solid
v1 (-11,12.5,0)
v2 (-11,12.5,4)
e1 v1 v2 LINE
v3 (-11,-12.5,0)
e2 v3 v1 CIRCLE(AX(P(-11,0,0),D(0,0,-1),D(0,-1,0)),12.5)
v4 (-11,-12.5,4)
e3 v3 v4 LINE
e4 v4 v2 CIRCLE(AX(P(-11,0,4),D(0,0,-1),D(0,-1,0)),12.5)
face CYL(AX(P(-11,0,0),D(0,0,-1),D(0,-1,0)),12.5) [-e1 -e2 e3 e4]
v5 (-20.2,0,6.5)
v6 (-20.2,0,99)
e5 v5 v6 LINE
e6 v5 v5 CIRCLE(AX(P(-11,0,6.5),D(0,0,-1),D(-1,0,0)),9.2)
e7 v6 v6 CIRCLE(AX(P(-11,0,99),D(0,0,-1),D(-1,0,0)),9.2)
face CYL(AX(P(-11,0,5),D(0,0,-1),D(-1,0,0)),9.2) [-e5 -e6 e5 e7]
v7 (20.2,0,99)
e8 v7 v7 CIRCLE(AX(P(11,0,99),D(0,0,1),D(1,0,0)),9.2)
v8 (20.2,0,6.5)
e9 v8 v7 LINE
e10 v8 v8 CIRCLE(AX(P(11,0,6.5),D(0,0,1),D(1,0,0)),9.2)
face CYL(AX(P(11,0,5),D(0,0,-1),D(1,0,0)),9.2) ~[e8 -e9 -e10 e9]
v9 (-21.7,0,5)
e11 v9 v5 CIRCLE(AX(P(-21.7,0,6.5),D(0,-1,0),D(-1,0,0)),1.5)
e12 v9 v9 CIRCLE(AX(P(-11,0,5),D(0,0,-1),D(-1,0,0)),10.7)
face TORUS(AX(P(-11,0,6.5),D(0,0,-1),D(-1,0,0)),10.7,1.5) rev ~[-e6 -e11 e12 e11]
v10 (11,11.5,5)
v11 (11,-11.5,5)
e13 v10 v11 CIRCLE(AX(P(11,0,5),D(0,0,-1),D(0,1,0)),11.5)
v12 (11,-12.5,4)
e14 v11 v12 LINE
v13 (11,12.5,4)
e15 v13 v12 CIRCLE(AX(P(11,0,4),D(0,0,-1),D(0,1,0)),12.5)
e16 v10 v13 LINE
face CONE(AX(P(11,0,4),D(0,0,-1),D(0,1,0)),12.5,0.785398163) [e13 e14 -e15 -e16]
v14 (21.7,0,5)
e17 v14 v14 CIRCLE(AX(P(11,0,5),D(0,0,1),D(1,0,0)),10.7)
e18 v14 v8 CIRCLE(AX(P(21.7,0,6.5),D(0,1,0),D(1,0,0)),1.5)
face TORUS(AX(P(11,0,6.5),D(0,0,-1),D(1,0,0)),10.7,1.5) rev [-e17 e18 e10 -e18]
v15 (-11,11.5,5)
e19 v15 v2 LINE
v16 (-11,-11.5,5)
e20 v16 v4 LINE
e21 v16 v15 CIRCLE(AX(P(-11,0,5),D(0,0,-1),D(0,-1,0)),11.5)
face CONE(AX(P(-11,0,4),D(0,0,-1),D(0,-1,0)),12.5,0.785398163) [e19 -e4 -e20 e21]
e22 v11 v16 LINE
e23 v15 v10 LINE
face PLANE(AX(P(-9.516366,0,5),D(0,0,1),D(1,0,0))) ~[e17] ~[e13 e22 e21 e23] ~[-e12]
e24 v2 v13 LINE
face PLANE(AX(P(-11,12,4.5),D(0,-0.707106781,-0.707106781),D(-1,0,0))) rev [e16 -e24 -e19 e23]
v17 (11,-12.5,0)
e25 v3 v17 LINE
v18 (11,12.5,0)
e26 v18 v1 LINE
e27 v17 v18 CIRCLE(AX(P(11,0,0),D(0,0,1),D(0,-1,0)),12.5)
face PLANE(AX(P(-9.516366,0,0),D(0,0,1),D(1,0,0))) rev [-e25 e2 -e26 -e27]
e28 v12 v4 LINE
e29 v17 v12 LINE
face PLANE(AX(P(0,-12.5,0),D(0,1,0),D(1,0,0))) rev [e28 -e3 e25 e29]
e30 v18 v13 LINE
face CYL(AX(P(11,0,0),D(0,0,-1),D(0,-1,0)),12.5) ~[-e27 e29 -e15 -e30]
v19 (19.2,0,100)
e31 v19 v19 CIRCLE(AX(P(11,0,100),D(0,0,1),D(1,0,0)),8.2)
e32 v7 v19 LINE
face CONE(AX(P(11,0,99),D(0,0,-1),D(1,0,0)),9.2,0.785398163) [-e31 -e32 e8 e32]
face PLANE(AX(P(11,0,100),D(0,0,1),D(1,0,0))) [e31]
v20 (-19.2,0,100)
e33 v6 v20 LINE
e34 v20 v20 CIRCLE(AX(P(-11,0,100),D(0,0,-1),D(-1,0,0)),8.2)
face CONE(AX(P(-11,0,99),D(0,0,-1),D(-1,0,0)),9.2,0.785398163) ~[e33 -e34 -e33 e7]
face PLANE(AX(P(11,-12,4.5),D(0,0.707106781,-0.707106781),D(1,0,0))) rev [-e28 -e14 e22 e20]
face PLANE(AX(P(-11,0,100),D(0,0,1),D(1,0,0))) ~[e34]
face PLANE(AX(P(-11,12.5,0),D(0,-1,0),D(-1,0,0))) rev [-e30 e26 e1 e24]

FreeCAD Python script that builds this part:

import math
import FreeCAD as App
import Part
import Sketcher
from FreeCAD import Vector
Q = App.Units.Quantity


def edges_at(feature, points):
    """Names of the edges that pass closest to the given points."""
    edges = feature.Shape.Edges
    near = lambda p: min(range(len(edges)), key=lambda i: edges[i].distToShape(Part.Vertex(*p))[0])
    return sorted({f"Edge{near(p) + 1}" for p in points})

doc = App.newDocument("Part")
body = doc.addObject("PartDesign::Body", "Body")

sketch1 = doc.addObject("Sketcher::SketchObject", "Sketch")
body.addObject(sketch1)
sketch1.AttachmentSupport = (doc.XY_Plane, [""])
sketch1.MapMode = "FlatFace"
sketch1.addGeometry(Part.ArcOfCircle(Part.Circle(Vector(11, 0, 0), Vector(0, 0, 1), 12), math.radians(-90), math.radians(90)), False)
sketch1.addGeometry(Part.LineSegment(Vector(11, 12, 0), Vector(0, 12, 0)), False)
sketch1.addGeometry(Part.LineSegment(Vector(0, 12, 0), Vector(0, -12, 0)), False)
sketch1.addGeometry(Part.LineSegment(Vector(0, -12, 0), Vector(11, -12, 0)), False)
sketch1.addConstraint(Sketcher.Constraint("Tangent", 0, 2, 1, 1))
sketch1.addConstraint(Sketcher.Constraint("Coincident", 1, 2, 2, 1))
sketch1.addConstraint(Sketcher.Constraint("Coincident", 2, 2, 3, 1))
sketch1.addConstraint(Sketcher.Constraint("Tangent", 3, 2, 0, 1))
sketch1.addConstraint(Sketcher.Constraint("Horizontal", 1))
sketch1.addConstraint(Sketcher.Constraint("Vertical", 2))
sketch1.addConstraint(Sketcher.Constraint("Horizontal", 3))
sketch1.addConstraint(Sketcher.Constraint("Symmetric", 1, 2, 2, 2, -1, 1))
sketch1.addConstraint(Sketcher.Constraint("Radius", 0, Q("12.5 mm")))
sketch1.addConstraint(Sketcher.Constraint("DistanceX", 1, 2, 1, 1, Q("11 mm")))
pad1 = doc.addObject("PartDesign::Pad", "Pad")
body.addObject(pad1)
pad1.Profile = sketch1
pad1.Length = 5
doc.recompute()

mirrored = doc.addObject("PartDesign::Mirrored", "Mirrored")
body.addObject(mirrored)
mirrored.Originals = [pad1]
mirrored.MirrorPlane = (doc.YZ_Plane, [""])
body.Tip = mirrored

sketch2 = doc.addObject("Sketcher::SketchObject", "Sketch001")
body.addObject(sketch2)
sketch2.AttachmentSupport = (doc.XY_Plane, [""])
sketch2.MapMode = "FlatFace"
sketch2.AttachmentOffset = App.Placement(Vector(0, 0, 5), App.Rotation())
sketch2.addGeometry(Part.Circle(Vector(11, 0, 0), Vector(0, 0, 1), 9), False)
sketch2.addConstraint(Sketcher.Constraint("PointOnObject", 0, 3, -1))
sketch2.addConstraint(Sketcher.Constraint("Diameter", 0, Q("18.4 mm")))
sketch2.addConstraint(Sketcher.Constraint("DistanceX", -1, 1, 0, 3, Q("11 mm")))
pad2 = doc.addObject("PartDesign::Pad", "Pad001")
body.addObject(pad2)
pad2.Profile = sketch2
pad2.Length = 95
doc.recompute()

mirrored2 = doc.addObject("PartDesign::Mirrored", "Mirrored001")
body.addObject(mirrored2)
mirrored2.Originals = [pad2]
mirrored2.MirrorPlane = (doc.YZ_Plane, [""])
body.Tip = mirrored2
doc.recompute()

fillet = doc.addObject("PartDesign::Fillet", "Fillet")
body.addObject(fillet)
fillet.Base = (mirrored2, edges_at(mirrored2, [(-1.8, 0, 5), (1.8, 0, 5)]))
fillet.Radius = 1.5
doc.recompute()

chamfer = doc.addObject("PartDesign::Chamfer", "Chamfer")
body.addObject(chamfer)
chamfer.Base = (fillet, edges_at(fillet, [
    (-23.5, 0, 5),
    (0, -12.5, 5),
    (23.5, 0, 5),
    (0, 12.5, 5),
]))
chamfer.Size = 1
doc.recompute()

chamfer2 = doc.addObject("PartDesign::Chamfer", "Chamfer001")
body.addObject(chamfer2)
chamfer2.Base = (chamfer, edges_at(chamfer, [(-1.8, 0, 100), (1.8, 0, 100)]))
chamfer2.Size = 1

doc.recompute()
